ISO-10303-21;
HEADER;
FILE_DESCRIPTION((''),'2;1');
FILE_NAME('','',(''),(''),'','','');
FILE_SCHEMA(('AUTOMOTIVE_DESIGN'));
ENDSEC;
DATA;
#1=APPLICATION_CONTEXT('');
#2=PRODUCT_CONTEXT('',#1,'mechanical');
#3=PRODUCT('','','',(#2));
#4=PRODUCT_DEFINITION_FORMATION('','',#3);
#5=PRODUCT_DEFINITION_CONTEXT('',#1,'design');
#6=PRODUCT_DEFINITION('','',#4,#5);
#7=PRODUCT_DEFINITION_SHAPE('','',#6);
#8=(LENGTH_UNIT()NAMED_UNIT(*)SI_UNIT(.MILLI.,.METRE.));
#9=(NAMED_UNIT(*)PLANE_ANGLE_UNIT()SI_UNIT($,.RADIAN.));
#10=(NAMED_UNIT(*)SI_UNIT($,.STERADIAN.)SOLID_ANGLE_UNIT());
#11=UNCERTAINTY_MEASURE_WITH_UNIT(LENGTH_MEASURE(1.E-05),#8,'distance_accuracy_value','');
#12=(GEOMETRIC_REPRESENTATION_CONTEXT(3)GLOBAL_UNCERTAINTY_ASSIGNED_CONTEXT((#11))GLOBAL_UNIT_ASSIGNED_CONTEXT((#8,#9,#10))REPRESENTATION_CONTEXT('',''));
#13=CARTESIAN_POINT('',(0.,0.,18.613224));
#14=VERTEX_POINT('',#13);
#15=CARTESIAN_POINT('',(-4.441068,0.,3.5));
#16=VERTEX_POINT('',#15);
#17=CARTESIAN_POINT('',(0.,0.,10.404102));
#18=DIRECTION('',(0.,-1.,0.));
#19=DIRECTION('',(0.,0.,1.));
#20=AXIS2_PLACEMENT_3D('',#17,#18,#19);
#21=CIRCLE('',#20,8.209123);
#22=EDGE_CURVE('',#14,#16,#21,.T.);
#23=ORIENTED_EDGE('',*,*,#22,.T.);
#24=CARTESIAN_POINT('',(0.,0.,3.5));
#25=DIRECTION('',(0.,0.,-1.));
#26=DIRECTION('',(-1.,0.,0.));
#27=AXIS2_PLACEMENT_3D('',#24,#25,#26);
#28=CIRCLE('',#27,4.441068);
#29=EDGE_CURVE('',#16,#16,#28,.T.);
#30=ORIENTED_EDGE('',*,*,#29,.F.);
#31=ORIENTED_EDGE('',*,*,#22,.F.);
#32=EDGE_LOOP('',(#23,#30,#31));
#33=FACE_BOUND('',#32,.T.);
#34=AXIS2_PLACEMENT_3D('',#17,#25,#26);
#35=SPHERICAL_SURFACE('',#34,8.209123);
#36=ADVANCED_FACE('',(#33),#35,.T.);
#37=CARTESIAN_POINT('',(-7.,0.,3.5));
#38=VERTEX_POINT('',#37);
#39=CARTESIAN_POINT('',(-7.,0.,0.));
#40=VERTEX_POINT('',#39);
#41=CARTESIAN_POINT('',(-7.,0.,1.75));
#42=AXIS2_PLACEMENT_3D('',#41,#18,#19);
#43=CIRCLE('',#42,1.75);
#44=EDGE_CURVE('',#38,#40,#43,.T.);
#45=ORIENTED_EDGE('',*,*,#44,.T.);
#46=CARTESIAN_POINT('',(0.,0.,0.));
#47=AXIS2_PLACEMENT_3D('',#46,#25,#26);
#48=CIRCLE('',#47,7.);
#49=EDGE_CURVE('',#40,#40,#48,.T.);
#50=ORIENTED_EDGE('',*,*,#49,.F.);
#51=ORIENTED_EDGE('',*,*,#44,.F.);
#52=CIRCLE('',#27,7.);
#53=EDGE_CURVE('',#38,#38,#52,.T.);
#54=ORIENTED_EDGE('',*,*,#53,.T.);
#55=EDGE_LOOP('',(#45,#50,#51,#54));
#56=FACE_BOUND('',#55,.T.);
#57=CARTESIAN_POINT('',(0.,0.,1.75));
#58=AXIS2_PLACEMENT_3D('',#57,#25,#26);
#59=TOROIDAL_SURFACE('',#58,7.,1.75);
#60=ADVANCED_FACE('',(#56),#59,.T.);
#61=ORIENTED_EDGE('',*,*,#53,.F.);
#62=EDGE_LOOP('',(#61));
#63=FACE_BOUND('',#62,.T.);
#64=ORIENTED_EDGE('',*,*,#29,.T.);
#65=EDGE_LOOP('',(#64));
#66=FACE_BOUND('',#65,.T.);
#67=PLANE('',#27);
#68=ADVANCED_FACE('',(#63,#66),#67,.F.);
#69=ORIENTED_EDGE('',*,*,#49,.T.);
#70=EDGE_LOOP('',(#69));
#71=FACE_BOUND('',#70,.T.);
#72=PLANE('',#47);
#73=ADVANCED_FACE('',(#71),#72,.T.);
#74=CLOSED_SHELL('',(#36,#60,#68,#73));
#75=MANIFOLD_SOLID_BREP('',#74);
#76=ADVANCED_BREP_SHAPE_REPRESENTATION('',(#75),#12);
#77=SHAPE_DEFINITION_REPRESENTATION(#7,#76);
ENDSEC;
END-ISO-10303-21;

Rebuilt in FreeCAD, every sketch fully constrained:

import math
import FreeCAD as App
import Part
import Sketcher

V = App.Vector

doc = App.newDocument("Part")
body = doc.addObject("PartDesign::Body", "Body")

# Sketch on XZ plane
sketch1 = body.newObject("Sketcher::SketchObject", "Sketch")
sketch1.AttachmentSupport = (doc.getObject("XZ_Plane"), [""])
sketch1.MapMode = "FlatFace"
sketch1.addGeometry([
    Part.ArcOfCircle(Part.Circle(V(0, 10.4, 0), V(0, 0, 1), 8.2), math.radians(90), math.radians(237)),  # 0
    Part.LineSegment(V(-4.4, 3.5, 0), V(-7, 3.5, 0)),  # 1
    Part.ArcOfCircle(Part.Circle(V(-7, 1.8, 0), V(0, 0, 1), 1.8), math.radians(90), math.radians(270)),  # 2
    Part.LineSegment(V(-7, 0, 0), V(0, 0, 0)),  # 3
    Part.LineSegment(V(0, 0, 0), V(0, 18.6, 0)),  # 4
], False)
sketch1.addConstraint([
    Sketcher.Constraint("Coincident", 0, 2, 1, 1),
    Sketcher.Constraint("Tangent", 1, 2, 2, 1),
    Sketcher.Constraint("Tangent", 2, 2, 3, 1),
    Sketcher.Constraint("Coincident", 3, 2, 4, 1),
    Sketcher.Constraint("Coincident", 4, 2, 0, 1),
    Sketcher.Constraint("Horizontal", 1),
    Sketcher.Constraint("Horizontal", 3),
    Sketcher.Constraint("Vertical", 4),
    Sketcher.Constraint("Coincident", 3, 2, -1, 1),
    Sketcher.Constraint("PointOnObject", 0, 3, -2),
    Sketcher.Constraint("DistanceX", 3, 1, 3, 2, 7.0),
    Sketcher.Constraint("Radius", 2, 1.75),
    Sketcher.Constraint("Radius", 0, 8.209123),
    Sketcher.Constraint("DistanceY", -1, 1, 0, 3, 10.404102),
])
revolution = body.newObject("PartDesign::Revolution", "Revolution")
revolution.Profile = sketch1
revolution.ReferenceAxis = (sketch1, ["V_Axis"])
revolution.Angle = 360

doc.recompute()
